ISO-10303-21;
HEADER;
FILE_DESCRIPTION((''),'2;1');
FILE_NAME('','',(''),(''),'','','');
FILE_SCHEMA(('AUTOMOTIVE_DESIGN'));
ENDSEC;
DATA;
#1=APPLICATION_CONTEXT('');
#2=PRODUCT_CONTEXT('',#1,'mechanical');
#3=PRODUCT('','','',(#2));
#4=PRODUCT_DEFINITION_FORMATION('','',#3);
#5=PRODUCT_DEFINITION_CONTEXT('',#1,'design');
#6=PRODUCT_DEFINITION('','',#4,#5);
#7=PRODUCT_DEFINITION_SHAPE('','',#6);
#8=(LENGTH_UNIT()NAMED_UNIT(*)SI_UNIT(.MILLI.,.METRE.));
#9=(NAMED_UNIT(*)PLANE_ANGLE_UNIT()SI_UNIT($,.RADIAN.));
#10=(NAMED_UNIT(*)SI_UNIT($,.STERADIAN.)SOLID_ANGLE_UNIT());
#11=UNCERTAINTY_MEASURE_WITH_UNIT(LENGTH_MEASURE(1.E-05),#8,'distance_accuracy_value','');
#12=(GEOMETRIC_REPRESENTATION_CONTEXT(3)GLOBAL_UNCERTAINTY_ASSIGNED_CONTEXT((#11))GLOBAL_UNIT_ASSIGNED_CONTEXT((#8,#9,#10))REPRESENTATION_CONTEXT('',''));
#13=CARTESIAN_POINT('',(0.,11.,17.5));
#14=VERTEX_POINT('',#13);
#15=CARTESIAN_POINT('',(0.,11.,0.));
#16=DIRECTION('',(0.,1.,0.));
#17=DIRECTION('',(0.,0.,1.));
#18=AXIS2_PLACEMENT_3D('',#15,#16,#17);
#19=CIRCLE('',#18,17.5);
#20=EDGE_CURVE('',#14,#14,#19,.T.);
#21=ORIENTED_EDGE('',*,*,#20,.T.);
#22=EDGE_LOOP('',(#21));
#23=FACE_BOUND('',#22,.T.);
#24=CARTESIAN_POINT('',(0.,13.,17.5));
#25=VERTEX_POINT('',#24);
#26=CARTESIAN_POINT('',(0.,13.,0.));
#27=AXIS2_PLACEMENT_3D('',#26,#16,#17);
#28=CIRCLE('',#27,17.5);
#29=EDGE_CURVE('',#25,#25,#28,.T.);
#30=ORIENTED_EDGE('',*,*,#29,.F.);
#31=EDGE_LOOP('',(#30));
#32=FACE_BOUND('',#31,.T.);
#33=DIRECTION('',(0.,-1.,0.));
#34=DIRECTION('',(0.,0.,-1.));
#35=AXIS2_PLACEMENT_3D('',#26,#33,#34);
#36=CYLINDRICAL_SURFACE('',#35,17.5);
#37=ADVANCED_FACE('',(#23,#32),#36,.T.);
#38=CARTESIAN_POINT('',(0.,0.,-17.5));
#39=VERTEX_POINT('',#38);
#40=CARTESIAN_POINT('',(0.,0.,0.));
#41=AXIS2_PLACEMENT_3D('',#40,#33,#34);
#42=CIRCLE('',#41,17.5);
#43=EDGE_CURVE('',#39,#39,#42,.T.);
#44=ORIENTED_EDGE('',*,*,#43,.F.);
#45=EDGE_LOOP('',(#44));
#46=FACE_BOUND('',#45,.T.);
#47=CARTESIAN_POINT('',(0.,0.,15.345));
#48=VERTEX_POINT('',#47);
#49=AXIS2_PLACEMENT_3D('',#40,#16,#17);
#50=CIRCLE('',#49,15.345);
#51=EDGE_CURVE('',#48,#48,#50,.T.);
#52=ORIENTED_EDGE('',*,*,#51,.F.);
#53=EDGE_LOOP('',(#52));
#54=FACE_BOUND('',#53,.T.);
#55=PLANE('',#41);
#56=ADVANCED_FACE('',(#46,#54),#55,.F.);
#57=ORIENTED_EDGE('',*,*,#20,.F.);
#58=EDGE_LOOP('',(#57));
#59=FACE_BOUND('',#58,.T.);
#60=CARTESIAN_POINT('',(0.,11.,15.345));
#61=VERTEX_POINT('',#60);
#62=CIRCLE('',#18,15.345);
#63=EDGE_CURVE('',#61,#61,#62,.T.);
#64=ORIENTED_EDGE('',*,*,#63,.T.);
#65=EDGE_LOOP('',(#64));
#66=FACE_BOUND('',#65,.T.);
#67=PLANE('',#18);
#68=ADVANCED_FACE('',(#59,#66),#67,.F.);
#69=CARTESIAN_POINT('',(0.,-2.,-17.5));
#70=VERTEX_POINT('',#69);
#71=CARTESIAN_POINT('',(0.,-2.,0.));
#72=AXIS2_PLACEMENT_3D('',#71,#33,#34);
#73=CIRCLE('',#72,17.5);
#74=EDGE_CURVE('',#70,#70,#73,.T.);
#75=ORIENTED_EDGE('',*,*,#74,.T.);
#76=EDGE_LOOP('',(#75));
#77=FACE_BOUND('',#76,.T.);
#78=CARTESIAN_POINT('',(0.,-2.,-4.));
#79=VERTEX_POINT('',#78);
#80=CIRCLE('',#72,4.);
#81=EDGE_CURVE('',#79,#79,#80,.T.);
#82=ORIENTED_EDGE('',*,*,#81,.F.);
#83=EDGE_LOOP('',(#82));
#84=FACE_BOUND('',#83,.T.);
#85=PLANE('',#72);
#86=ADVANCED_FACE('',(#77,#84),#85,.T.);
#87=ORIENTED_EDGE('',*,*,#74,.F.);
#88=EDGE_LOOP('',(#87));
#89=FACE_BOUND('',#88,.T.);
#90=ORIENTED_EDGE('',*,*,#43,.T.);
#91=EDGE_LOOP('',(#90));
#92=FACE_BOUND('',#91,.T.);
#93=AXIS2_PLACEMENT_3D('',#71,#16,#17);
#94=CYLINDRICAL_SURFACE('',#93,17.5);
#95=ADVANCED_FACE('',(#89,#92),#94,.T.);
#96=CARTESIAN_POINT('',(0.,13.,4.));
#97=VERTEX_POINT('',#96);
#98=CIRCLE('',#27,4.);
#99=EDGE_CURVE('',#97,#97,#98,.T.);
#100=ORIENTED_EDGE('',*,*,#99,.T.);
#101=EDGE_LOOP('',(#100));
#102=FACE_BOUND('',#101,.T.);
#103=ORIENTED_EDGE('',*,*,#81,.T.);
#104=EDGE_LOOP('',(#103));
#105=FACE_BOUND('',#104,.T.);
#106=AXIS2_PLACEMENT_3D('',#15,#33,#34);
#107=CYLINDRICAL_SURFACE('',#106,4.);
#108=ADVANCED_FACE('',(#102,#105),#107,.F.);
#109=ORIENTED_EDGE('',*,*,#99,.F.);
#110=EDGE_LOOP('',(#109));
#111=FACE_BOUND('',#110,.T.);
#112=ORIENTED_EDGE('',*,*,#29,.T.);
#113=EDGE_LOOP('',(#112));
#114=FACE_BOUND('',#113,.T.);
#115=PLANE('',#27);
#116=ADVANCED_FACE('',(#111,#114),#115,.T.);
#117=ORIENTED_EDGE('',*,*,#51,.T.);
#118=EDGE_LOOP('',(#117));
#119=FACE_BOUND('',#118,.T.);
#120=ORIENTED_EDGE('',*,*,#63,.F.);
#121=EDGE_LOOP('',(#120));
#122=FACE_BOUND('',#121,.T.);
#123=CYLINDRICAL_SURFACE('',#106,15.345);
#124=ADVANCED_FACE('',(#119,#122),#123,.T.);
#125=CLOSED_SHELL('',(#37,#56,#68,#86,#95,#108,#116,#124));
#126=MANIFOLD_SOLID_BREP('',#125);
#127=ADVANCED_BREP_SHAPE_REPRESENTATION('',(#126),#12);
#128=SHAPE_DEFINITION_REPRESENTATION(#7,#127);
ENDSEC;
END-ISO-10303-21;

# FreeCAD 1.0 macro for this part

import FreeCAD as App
import Part
import Sketcher
Q = App.Units.Quantity

doc = App.newDocument("Part")
body = doc.addObject("PartDesign::Body", "Body")

sketch1 = body.newObject("Sketcher::SketchObject", "Sketch")
sketch1.AttachmentSupport = (doc.getObject("XZ_Plane"), [""])
sketch1.MapMode = "FlatFace"
sketch1.addGeometry(Part.Circle(App.Vector(0, 0, 0), App.Vector(0, 0, 1), 15.3), False)
sketch1.addGeometry(Part.Circle(App.Vector(0, 0, 0), App.Vector(0, 0, 1), 4), False)
sketch1.addConstraint(Sketcher.Constraint("Coincident", 0, 3, -1, 1))
sketch1.addConstraint(Sketcher.Constraint("Coincident", 1, 3, -1, 1))
sketch1.addConstraint(Sketcher.Constraint("Diameter", 1, Q("8 mm")))
sketch1.addConstraint(Sketcher.Constraint("Diameter", 0, Q("30.69 mm")))
pad1 = body.newObject("PartDesign::Pad", "Pad")
pad1.Profile = sketch1
pad1.Length = 11
pad1.Reversed = True

sketch2 = body.newObject("Sketcher::SketchObject", "Sketch001")
sketch2.AttachmentSupport = (doc.getObject("XZ_Plane"), [""])
sketch2.MapMode = "FlatFace"
sketch2.AttachmentOffset = App.Placement(App.Vector(0, 0, -11), App.Rotation())
sketch2.addGeometry(Part.Circle(App.Vector(0, 0, 0), App.Vector(0, 0, 1), 17.5), False)
sketch2.addGeometry(Part.Circle(App.Vector(0, 0, 0), App.Vector(0, 0, 1), 4), False)
sketch2.addConstraint(Sketcher.Constraint("Coincident", 0, 3, -1, 1))
sketch2.addConstraint(Sketcher.Constraint("Coincident", 1, 3, -1, 1))
sketch2.addConstraint(Sketcher.Constraint("Diameter", 0, Q("35 mm")))
sketch2.addConstraint(Sketcher.Constraint("Diameter", 1, Q("8 mm")))
pad2 = body.newObject("PartDesign::Pad", "Pad001")
pad2.Profile = sketch2
pad2.Length = 2
pad2.Reversed = True

sketch3 = body.newObject("Sketcher::SketchObject", "Sketch002")
sketch3.AttachmentSupport = (doc.getObject("XZ_Plane"), [""])
sketch3.MapMode = "FlatFace"
sketch3.AttachmentOffset = App.Placement(App.Vector(0, 0, 2), App.Rotation())
sketch3.addGeometry(Part.Circle(App.Vector(0, 0, 0), App.Vector(0, 0, 1), 17.5), False)
sketch3.addGeometry(Part.Circle(App.Vector(0, 0, 0), App.Vector(0, 0, 1), 4), False)
sketch3.addConstraint(Sketcher.Constraint("Coincident", 0, 3, -1, 1))
sketch3.addConstraint(Sketcher.Constraint("Coincident", 1, 3, -1, 1))
sketch3.addConstraint(Sketcher.Constraint("Diameter", 0, Q("35 mm")))
sketch3.addConstraint(Sketcher.Constraint("Diameter", 1, Q("8 mm")))
pad3 = body.newObject("PartDesign::Pad", "Pad002")
pad3.Profile = sketch3
pad3.Length = 2
pad3.Reversed = True

doc.recompute()
